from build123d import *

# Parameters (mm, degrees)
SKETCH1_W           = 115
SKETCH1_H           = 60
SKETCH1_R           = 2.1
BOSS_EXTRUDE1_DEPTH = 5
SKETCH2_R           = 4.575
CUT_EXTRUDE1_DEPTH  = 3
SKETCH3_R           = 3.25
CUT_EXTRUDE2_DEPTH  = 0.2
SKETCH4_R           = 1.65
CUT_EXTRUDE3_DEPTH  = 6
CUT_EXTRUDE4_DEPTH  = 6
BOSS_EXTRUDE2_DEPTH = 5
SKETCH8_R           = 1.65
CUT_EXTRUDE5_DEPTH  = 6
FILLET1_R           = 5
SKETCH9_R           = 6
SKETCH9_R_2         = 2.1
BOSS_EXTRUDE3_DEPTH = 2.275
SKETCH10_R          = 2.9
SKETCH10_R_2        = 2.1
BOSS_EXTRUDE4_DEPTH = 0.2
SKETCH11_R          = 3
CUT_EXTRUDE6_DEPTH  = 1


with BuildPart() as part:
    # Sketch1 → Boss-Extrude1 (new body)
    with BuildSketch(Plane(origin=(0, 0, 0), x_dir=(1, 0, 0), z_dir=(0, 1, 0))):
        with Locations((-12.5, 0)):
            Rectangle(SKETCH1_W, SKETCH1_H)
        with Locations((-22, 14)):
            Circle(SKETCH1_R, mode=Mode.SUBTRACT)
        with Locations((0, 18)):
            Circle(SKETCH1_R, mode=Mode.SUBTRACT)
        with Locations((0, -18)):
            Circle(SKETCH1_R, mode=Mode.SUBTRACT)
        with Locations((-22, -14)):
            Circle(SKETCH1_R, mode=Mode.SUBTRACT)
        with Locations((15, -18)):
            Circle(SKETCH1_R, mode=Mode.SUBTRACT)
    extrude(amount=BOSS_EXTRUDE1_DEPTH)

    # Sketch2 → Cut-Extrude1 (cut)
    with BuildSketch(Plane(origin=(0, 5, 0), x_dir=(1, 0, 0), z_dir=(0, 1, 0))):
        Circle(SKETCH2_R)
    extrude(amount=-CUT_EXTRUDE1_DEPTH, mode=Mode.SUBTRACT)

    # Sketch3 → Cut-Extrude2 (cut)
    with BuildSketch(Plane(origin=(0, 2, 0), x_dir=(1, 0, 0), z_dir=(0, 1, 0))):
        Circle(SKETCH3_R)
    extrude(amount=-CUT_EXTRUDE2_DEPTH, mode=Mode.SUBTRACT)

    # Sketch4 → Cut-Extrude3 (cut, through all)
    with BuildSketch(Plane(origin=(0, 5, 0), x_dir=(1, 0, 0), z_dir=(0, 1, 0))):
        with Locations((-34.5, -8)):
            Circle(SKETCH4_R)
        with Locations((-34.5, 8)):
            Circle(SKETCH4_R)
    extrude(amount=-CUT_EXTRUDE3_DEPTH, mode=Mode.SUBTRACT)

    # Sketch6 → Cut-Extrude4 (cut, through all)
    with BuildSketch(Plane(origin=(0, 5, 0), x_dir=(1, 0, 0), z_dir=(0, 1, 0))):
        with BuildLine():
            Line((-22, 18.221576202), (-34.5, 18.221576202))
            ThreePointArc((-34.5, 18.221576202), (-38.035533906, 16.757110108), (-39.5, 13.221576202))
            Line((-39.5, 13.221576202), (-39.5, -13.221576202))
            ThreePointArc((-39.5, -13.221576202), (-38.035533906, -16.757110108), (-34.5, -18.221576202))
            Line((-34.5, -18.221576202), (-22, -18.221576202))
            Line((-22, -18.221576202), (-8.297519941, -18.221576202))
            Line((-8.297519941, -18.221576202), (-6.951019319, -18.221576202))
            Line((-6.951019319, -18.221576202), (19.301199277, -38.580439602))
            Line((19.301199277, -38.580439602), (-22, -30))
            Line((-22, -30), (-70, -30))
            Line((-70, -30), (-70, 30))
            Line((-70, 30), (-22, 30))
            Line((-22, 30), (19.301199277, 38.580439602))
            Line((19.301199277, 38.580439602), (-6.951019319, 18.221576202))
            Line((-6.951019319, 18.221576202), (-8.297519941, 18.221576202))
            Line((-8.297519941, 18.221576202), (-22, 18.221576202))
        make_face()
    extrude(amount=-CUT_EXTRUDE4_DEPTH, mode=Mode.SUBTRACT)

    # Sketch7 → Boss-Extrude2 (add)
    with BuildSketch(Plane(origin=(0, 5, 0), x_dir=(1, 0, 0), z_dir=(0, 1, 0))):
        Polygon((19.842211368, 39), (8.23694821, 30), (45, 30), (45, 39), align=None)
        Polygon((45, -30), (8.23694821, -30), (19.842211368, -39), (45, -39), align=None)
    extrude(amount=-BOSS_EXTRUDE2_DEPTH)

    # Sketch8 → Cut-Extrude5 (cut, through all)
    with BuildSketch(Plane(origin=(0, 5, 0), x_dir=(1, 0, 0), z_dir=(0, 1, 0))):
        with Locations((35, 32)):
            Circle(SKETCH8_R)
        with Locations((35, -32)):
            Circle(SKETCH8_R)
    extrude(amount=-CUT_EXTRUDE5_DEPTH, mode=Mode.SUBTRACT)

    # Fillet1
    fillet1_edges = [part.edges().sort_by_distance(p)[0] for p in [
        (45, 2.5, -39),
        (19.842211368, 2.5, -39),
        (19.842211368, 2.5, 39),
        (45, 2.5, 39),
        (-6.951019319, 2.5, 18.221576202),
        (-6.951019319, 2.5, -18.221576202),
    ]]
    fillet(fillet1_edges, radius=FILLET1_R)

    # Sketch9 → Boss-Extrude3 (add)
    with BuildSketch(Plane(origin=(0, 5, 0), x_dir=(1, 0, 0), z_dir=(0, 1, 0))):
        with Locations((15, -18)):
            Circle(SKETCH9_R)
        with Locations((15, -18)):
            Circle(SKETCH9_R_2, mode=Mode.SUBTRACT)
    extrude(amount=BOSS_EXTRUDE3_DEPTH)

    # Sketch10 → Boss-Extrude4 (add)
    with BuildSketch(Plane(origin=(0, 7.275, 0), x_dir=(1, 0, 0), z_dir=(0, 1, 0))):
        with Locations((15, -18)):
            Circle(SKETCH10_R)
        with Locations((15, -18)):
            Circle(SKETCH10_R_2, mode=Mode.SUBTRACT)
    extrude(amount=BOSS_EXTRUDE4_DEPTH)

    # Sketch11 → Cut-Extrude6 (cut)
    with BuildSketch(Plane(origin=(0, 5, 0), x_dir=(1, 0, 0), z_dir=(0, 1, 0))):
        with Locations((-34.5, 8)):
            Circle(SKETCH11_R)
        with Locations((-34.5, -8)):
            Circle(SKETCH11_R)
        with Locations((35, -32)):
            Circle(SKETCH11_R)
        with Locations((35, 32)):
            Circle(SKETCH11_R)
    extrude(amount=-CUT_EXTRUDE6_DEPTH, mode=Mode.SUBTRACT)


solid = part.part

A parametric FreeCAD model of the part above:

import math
import FreeCAD as App
import Part
import Sketcher

V = App.Vector
Q = App.Units.Quantity


def edges_at(feature, points):
    """Names of the edges that pass closest to the given points."""
    edges = feature.Shape.Edges
    near = lambda p: min(range(len(edges)), key=lambda i: edges[i].distToShape(Part.Vertex(*p))[0])
    return sorted({f"Edge{near(p) + 1}" for p in points})


def add_polygon(sketch, points):
    """Adds a closed chain of lines whose ends are joined by coincident constraints."""
    first, n = sketch.GeometryCount, len(points)
    for a, b in zip(points, points[1:] + points[:1]):
        sketch.addGeometry(Part.LineSegment(App.Vector(*a, 0), App.Vector(*b, 0)), False)
    for i in range(n):
        sketch.addConstraint(Sketcher.Constraint("Coincident", first + i, 2, first + (i + 1) % n, 1))

doc = App.newDocument("Part")
params = doc.addObject("Spreadsheet::Sheet", "Params")
for row, (alias, value) in enumerate([
    ("sketch1_diameter", "4.2 mm"),
    ("sketch1_width", "115 mm"),
    ("sketch1_height", "60 mm"),
    ("pad1_length", "5 mm"),
    ("sketch2_diameter", "9.15 mm"),
    ("pocket1_length", "3 mm"),
    ("sketch3_diameter", "6.5 mm"),
    ("pocket2_length", "0.2 mm"),
    ("sketch4_diameter", "3.3 mm"),
    ("sketch5_radius", "5 mm"),
    ("sketch5_width", "48 mm"),
    ("sketch5_height", "60 mm"),
    ("sketch6_height", "9 mm"),
    ("pad2_length", "5 mm"),
    ("sketch7_diameter", "3.3 mm"),
    ("fillet_radius", "5 mm"),
    ("sketch8_diameter", "12 mm"),
    ("sketch8_diameter2", "4.2 mm"),
    ("pad3_length", "2.275 mm"),
    ("sketch9_diameter", "5.8 mm"),
    ("sketch9_diameter2", "4.2 mm"),
    ("pad4_length", "0.2 mm"),
    ("sketch10_diameter", "6 mm"),
    ("pocket6_length", "1 mm"),
], start=1):
    params.set(f"A{row}", alias)
    params.set(f"B{row}", "=" + value)
    params.setAlias(f"B{row}", alias)

body = doc.addObject("PartDesign::Body", "Body")

# Sketch on XZ plane
sketch1 = body.newObject("Sketcher::SketchObject", "Sketch")
sketch1.AttachmentSupport = (doc.getObject("XZ_Plane"), [""])
sketch1.MapMode = "FlatFace"
add_polygon(sketch1, [(-70, -30), (-70, 30), (45, 30), (45, -30)])  # lines 0-3
sketch1.addGeometry(Part.Circle(V(-22, 14, 0), V(0, 0, 1), 2.1), False)  # 4
sketch1.addGeometry(Part.Circle(V(0, 18, 0), V(0, 0, 1), 2.1), False)  # 5
sketch1.addGeometry(Part.Circle(V(15, 18, 0), V(0, 0, 1), 2.1), False)  # 6
sketch1.addGeometry(Part.Circle(V(-22, -14, 0), V(0, 0, 1), 2.1), False)  # 7
sketch1.addGeometry(Part.Circle(V(0, -18, 0), V(0, 0, 1), 2.1), False)  # 8
sketch1.addConstraint([
    Sketcher.Constraint("Vertical", 0),
    Sketcher.Constraint("Horizontal", 1),
    Sketcher.Constraint("Vertical", 2),
    Sketcher.Constraint("Horizontal", 3),
    Sketcher.Constraint("Equal", 4, 5),
    Sketcher.Constraint("Equal", 5, 6),
    Sketcher.Constraint("Equal", 6, 7),
    Sketcher.Constraint("Equal", 7, 8),
    Sketcher.Constraint("Symmetric", 5, 3, 8, 3, -1, 1),
    Sketcher.Constraint("Symmetric", 4, 3, 7, 3, -1),
    Sketcher.Constraint("PointOnObject", 5, 3, -2),
    Sketcher.Constraint("Horizontal", 5, 3, 6, 3),
    Sketcher.Constraint("Diameter", 4, Q("4.2 mm")),
    Sketcher.Constraint("DistanceX", 1, 1, 1, 2, Q("115 mm")),
    Sketcher.Constraint("DistanceY", 0, 1, 0, 2, Q("60 mm")),
    Sketcher.Constraint("DistanceX", 4, 3, -1, 1, Q("22 mm")),
    Sketcher.Constraint("DistanceY", -1, 1, 4, 3, Q("14 mm")),
    Sketcher.Constraint("DistanceY", -1, 1, 5, 3, Q("18 mm")),
    Sketcher.Constraint("DistanceX", -1, 1, 6, 3, Q("15 mm")),
    Sketcher.Constraint("DistanceX", 0, 2, -1, 1, Q("70 mm")),
    Sketcher.Constraint("DistanceY", -1, 1, 0, 2, Q("30 mm")),
])
sketch1.setExpression("Constraints[16]", "Params.sketch1_diameter")
sketch1.setExpression("Constraints[17]", "Params.sketch1_width")
sketch1.setExpression("Constraints[18]", "Params.sketch1_height")
pad1 = body.newObject("PartDesign::Pad", "Pad")
pad1.Profile = sketch1
pad1.setExpression("Length", "Params.pad1_length")
pad1.Reversed = True

# Sketch on XZ plane
sketch2 = body.newObject("Sketcher::SketchObject", "Sketch001")
sketch2.AttachmentSupport = (doc.getObject("XZ_Plane"), [""])
sketch2.MapMode = "FlatFace"
sketch2.AttachmentOffset = App.Placement(V(0, 0, -5), App.Rotation())
sketch2.addGeometry(Part.Circle(V(0, 0, 0), V(0, 0, 1), 4.575), False)
sketch2.addConstraint([
    Sketcher.Constraint("Coincident", 0, 3, -1, 1),
    Sketcher.Constraint("Diameter", 0, Q("9.15 mm")),
])
sketch2.setExpression("Constraints[1]", "Params.sketch2_diameter")
pocket1 = body.newObject("PartDesign::Pocket", "Pocket")
pocket1.Profile = sketch2
pocket1.setExpression("Length", "Params.pocket1_length")
pocket1.Reversed = True

# Sketch on XZ plane
sketch3 = body.newObject("Sketcher::SketchObject", "Sketch002")
sketch3.AttachmentSupport = (doc.getObject("XZ_Plane"), [""])
sketch3.MapMode = "FlatFace"
sketch3.AttachmentOffset = App.Placement(V(0, 0, -2), App.Rotation())
sketch3.addGeometry(Part.Circle(V(0, 0, 0), V(0, 0, 1), 3.25), False)
sketch3.addConstraint([
    Sketcher.Constraint("Coincident", 0, 3, -1, 1),
    Sketcher.Constraint("Diameter", 0, Q("6.5 mm")),
])
sketch3.setExpression("Constraints[1]", "Params.sketch3_diameter")
pocket2 = body.newObject("PartDesign::Pocket", "Pocket001")
pocket2.Profile = sketch3
pocket2.setExpression("Length", "Params.pocket2_length")
pocket2.Reversed = True

# Sketch on XZ plane
sketch4 = body.newObject("Sketcher::SketchObject", "Sketch003")
sketch4.AttachmentSupport = (doc.getObject("XZ_Plane"), [""])
sketch4.MapMode = "FlatFace"
sketch4.AttachmentOffset = App.Placement(V(0, 0, -5), App.Rotation())
sketch4.addGeometry([
    Part.Circle(V(-34.5, 8, 0), V(0, 0, 1), 1.65),
    Part.Circle(V(-34.5, -8, 0), V(0, 0, 1), 1.65),
], False)
sketch4.addConstraint([
    Sketcher.Constraint("Equal", 0, 1),
    Sketcher.Constraint("Symmetric", 0, 3, 1, 3, -1),
    Sketcher.Constraint("Diameter", 0, Q("3.3 mm")),
    Sketcher.Constraint("DistanceY", -1, 1, 0, 3, Q("8 mm")),
    Sketcher.Constraint("DistanceX", 0, 3, -1, 1, Q("34.5 mm")),
])
sketch4.setExpression("Constraints[2]", "Params.sketch4_diameter")
pocket3 = body.newObject("PartDesign::Pocket", "Pocket002")
pocket3.Profile = sketch4
pocket3.Type = "ThroughAll"
pocket3.Reversed = True

# Sketch on XZ plane
sketch5 = body.newObject("Sketcher::SketchObject", "Sketch004")
sketch5.AttachmentSupport = (doc.getObject("XZ_Plane"), [""])
sketch5.MapMode = "FlatFace"
sketch5.AttachmentOffset = App.Placement(V(0, 0, -5), App.Rotation())
sketch5.addGeometry([
    Part.ArcOfCircle(Part.Circle(V(-34.5, -13.221576, 0), V(0, 0, 1), 5), math.radians(180), math.radians(270)),  # 0
    Part.LineSegment(V(-34.5, -18.221576, 0), V(-6.951019, -18.221576, 0)),  # 1
    Part.LineSegment(V(-6.951019, -18.221576, 0), V(19.301199, -38.58044, 0)),  # 2
    Part.LineSegment(V(19.301199, -38.58044, 0), V(-22, -30, 0)),  # 3
    Part.LineSegment(V(-22, -30, 0), V(-70, -30, 0)),  # 4
    Part.LineSegment(V(-70, -30, 0), V(-70, 30, 0)),  # 5
    Part.LineSegment(V(-70, 30, 0), V(-22, 30, 0)),  # 6
    Part.LineSegment(V(-22, 30, 0), V(19.301199, 38.58044, 0)),  # 7
    Part.LineSegment(V(19.301199, 38.58044, 0), V(-6.951019, 18.221576, 0)),  # 8
    Part.LineSegment(V(-6.951019, 18.221576, 0), V(-34.5, 18.221576, 0)),  # 9
    Part.ArcOfCircle(Part.Circle(V(-34.5, 13.221576, 0), V(0, 0, 1), 5), math.radians(90), math.radians(180)),  # 10
    Part.LineSegment(V(-39.5, 13.221576, 0), V(-39.5, -13.221576, 0)),  # 11
], False)
sketch5.addConstraint([
    Sketcher.Constraint("Tangent", 0, 2, 1, 1),
    Sketcher.Constraint("Coincident", 1, 2, 2, 1),
    Sketcher.Constraint("Coincident", 2, 2, 3, 1),
    Sketcher.Constraint("Coincident", 3, 2, 4, 1),
    Sketcher.Constraint("Coincident", 4, 2, 5, 1),
    Sketcher.Constraint("Coincident", 5, 2, 6, 1),
    Sketcher.Constraint("Coincident", 6, 2, 7, 1),
    Sketcher.Constraint("Coincident", 7, 2, 8, 1),
    Sketcher.Constraint("Coincident", 8, 2, 9, 1),
    Sketcher.Constraint("Tangent", 9, 2, 10, 1),
    Sketcher.Constraint("Tangent", 10, 2, 11, 1),
    Sketcher.Constraint("Tangent", 11, 2, 0, 1),
    Sketcher.Constraint("Horizontal", 1),
    Sketcher.Constraint("Horizontal", 4),
    Sketcher.Constraint("Vertical", 5),
    Sketcher.Constraint("Horizontal", 6),
    Sketcher.Constraint("Horizontal", 9),
    Sketcher.Constraint("Vertical", 11),
    Sketcher.Constraint("Equal", 0, 10),
    Sketcher.Constraint("Symmetric", 3, 2, 6, 2, -1),
    Sketcher.Constraint("Symmetric", 2, 2, 7, 2, -1),
    Sketcher.Constraint("Symmetric", 1, 2, 8, 2, -1),
    Sketcher.Constraint("Radius", 0, Q("5 mm")),
    Sketcher.Constraint("DistanceX", 4, 2, 4, 1, Q("48 mm")),
    Sketcher.Constraint("DistanceY", 5, 1, 5, 2, Q("60 mm")),
    Sketcher.Constraint("DistanceX", 3, 2, -1, 1, Q("22 mm")),
    Sketcher.Constraint("DistanceX", 0, 3, -1, 1, Q("34.5 mm")),
    Sketcher.Constraint("DistanceX", 1, 1, 1, 2, Q("27.548981 mm")),
    Sketcher.Constraint("DistanceX", -1, 1, 2, 2, Q("19.301199 mm")),
    Sketcher.Constraint("Distance", 3, Q("42.183089 mm")),
    Sketcher.Constraint("DistanceY", 11, 2, 11, 1, Q("26.443152 mm")),
])
sketch5.setExpression("Constraints[22]", "Params.sketch5_radius")
sketch5.setExpression("Constraints[23]", "Params.sketch5_width")
sketch5.setExpression("Constraints[24]", "Params.sketch5_height")
pocket4 = body.newObject("PartDesign::Pocket", "Pocket003")
pocket4.Profile = sketch5
pocket4.Type = "ThroughAll"
pocket4.Reversed = True

# Sketch on XZ plane
sketch6 = body.newObject("Sketcher::SketchObject", "Sketch005")
sketch6.AttachmentSupport = (doc.getObject("XZ_Plane"), [""])
sketch6.MapMode = "FlatFace"
sketch6.AttachmentOffset = App.Placement(V(0, 0, -5), App.Rotation())
add_polygon(sketch6, [(19.842211, -39), (8.236948, -30), (45, -30), (45, -39)])  # lines 0-3
add_polygon(sketch6, [(45, 30), (8.236948, 30), (19.842211, 39), (45, 39)])  # lines 4-7
sketch6.addConstraint([
    Sketcher.Constraint("Horizontal", 1),
    Sketcher.Constraint("Vertical", 2),
    Sketcher.Constraint("Horizontal", 3),
    Sketcher.Constraint("Horizontal", 4),
    Sketcher.Constraint("Horizontal", 6),
    Sketcher.Constraint("Vertical", 7),
    Sketcher.Constraint("Symmetric", 0, 2, 4, 2, -1),
    Sketcher.Constraint("Symmetric", 3, 2, 5, 2, -1),
    Sketcher.Constraint("Vertical", 2, 2, 6, 2),
    Sketcher.Constraint("DistanceY", 2, 2, 2, 1, Q("9 mm")),
    Sketcher.Constraint("DistanceY", 0, 2, -1, 1, Q("30 mm")),
    Sketcher.Constraint("DistanceX", -1, 1, 1, 2, Q("45 mm")),
    Sketcher.Constraint("DistanceX", 1, 1, 1, 2, Q("36.763052 mm")),
    Sketcher.Constraint("DistanceX", 3, 2, 3, 1, Q("25.157789 mm")),
])
sketch6.setExpression("Constraints[17]", "Params.sketch6_height")
pad2 = body.newObject("PartDesign::Pad", "Pad001")
pad2.Profile = sketch6
pad2.setExpression("Length", "Params.pad2_length")

# Sketch on XZ plane
sketch7 = body.newObject("Sketcher::SketchObject", "Sketch006")
sketch7.AttachmentSupport = (doc.getObject("XZ_Plane"), [""])
sketch7.MapMode = "FlatFace"
sketch7.AttachmentOffset = App.Placement(V(0, 0, -5), App.Rotation())
sketch7.addGeometry([
    Part.Circle(V(35, -32, 0), V(0, 0, 1), 1.65),
    Part.Circle(V(35, 32, 0), V(0, 0, 1), 1.65),
], False)
sketch7.addConstraint([
    Sketcher.Constraint("Equal", 0, 1),
    Sketcher.Constraint("Symmetric", 0, 3, 1, 3, -1),
    Sketcher.Constraint("Diameter", 0, Q("3.3 mm")),
    Sketcher.Constraint("DistanceX", -1, 1, 0, 3, Q("35 mm")),
    Sketcher.Constraint("DistanceY", 0, 3, -1, 1, Q("32 mm")),
])
sketch7.setExpression("Constraints[2]", "Params.sketch7_diameter")
pocket5 = body.newObject("PartDesign::Pocket", "Pocket004")
pocket5.Profile = sketch7
pocket5.Type = "ThroughAll"
pocket5.Reversed = True
doc.recompute()

fillet = body.newObject("PartDesign::Fillet", "Fillet")
fillet.Base = (pocket5, edges_at(pocket5, [
    (45, 2.5, -39),
    (19.842, 2.5, -39),
    (19.842, 2.5, 39),
    (45, 2.5, 39),
    (-6.951, 2.5, 18.222),
    (-6.951, 2.5, -18.222),
]))
fillet.setExpression("Radius", "Params.fillet_radius")

# Sketch on XZ plane
sketch8 = body.newObject("Sketcher::SketchObject", "Sketch007")
sketch8.AttachmentSupport = (doc.getObject("XZ_Plane"), [""])
sketch8.MapMode = "FlatFace"
sketch8.AttachmentOffset = App.Placement(V(0, 0, -5), App.Rotation())
sketch8.addGeometry([
    Part.Circle(V(15, 18, 0), V(0, 0, 1), 6),
    Part.Circle(V(15, 18, 0), V(0, 0, 1), 2.1),
], False)
sketch8.addConstraint([
    Sketcher.Constraint("Coincident", 1, 3, 0, 3),
    Sketcher.Constraint("Diameter", 0, Q("12 mm")),
    Sketcher.Constraint("Diameter", 1, Q("4.2 mm")),
    Sketcher.Constraint("DistanceX", -1, 1, 0, 3, Q("15 mm")),
    Sketcher.Constraint("DistanceY", -1, 1, 0, 3, Q("18 mm")),
])
sketch8.setExpression("Constraints[1]", "Params.sketch8_diameter")
sketch8.setExpression("Constraints[2]", "Params.sketch8_diameter2")
pad3 = body.newObject("PartDesign::Pad", "Pad002")
pad3.Profile = sketch8
pad3.setExpression("Length", "Params.pad3_length")
pad3.Reversed = True

# Sketch on XZ plane
sketch9 = body.newObject("Sketcher::SketchObject", "Sketch008")
sketch9.AttachmentSupport = (doc.getObject("XZ_Plane"), [""])
sketch9.MapMode = "FlatFace"
sketch9.AttachmentOffset = App.Placement(V(0, 0, -7.275), App.Rotation())
sketch9.addGeometry([
    Part.Circle(V(15, 18, 0), V(0, 0, 1), 2.9),
    Part.Circle(V(15, 18, 0), V(0, 0, 1), 2.1),
], False)
sketch9.addConstraint([
    Sketcher.Constraint("Coincident", 1, 3, 0, 3),
    Sketcher.Constraint("Diameter", 0, Q("5.8 mm")),
    Sketcher.Constraint("Diameter", 1, Q("4.2 mm")),
    Sketcher.Constraint("DistanceX", -1, 1, 0, 3, Q("15 mm")),
    Sketcher.Constraint("DistanceY", -1, 1, 0, 3, Q("18 mm")),
])
sketch9.setExpression("Constraints[1]", "Params.sketch9_diameter")
sketch9.setExpression("Constraints[2]", "Params.sketch9_diameter2")
pad4 = body.newObject("PartDesign::Pad", "Pad003")
pad4.Profile = sketch9
pad4.setExpression("Length", "Params.pad4_length")
pad4.Reversed = True

# Sketch on XZ plane
sketch10 = body.newObject("Sketcher::SketchObject", "Sketch009")
sketch10.AttachmentSupport = (doc.getObject("XZ_Plane"), [""])
sketch10.MapMode = "FlatFace"
sketch10.AttachmentOffset = App.Placement(V(0, 0, -5), App.Rotation())
sketch10.addGeometry([
    Part.Circle(V(-34.5, -8, 0), V(0, 0, 1), 3),
    Part.Circle(V(-34.5, 8, 0), V(0, 0, 1), 3),
    Part.Circle(V(35, 32, 0), V(0, 0, 1), 3),
    Part.Circle(V(35, -32, 0), V(0, 0, 1), 3),
], False)
sketch10.addConstraint([
    Sketcher.Constraint("Equal", 0, 1),
    Sketcher.Constraint("Equal", 1, 2),
    Sketcher.Constraint("Equal", 2, 3),
    Sketcher.Constraint("Symmetric", 0, 3, 1, 3, -1),
    Sketcher.Constraint("Symmetric", 2, 3, 3, 3, -1),
    Sketcher.Constraint("Diameter", 0, Q("6 mm")),
    Sketcher.Constraint("DistanceY", 0, 3, -1, 1, Q("8 mm")),
    Sketcher.Constraint("DistanceX", -1, 1, 2, 3, Q("35 mm")),
    Sketcher.Constraint("DistanceY", -1, 1, 2, 3, Q("32 mm")),
    Sketcher.Constraint("DistanceX", 0, 3, -1, 1, Q("34.5 mm")),
])
sketch10.setExpression("Constraints[5]", "Params.sketch10_diameter")
pocket6 = body.newObject("PartDesign::Pocket", "Pocket005")
pocket6.Profile = sketch10
pocket6.setExpression("Length", "Params.pocket6_length")
pocket6.Reversed = True

doc.recompute()
